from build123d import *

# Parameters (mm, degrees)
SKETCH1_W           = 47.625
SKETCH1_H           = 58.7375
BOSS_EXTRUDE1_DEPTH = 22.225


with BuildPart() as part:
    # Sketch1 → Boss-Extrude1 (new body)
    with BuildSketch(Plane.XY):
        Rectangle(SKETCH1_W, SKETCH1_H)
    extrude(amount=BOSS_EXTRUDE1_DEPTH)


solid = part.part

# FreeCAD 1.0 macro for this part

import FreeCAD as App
import Part
import Sketcher

V = App.Vector
Q = App.Units.Quantity

doc = App.newDocument("Part")
body = doc.addObject("PartDesign::Body", "Body")

sketch1 = doc.addObject("Sketcher::SketchObject", "Sketch")
body.addObject(sketch1)
sketch1.AttachmentSupport = (doc.XY_Plane, [""])
sketch1.MapMode = "FlatFace"
sketch1.addGeometry([
    Part.LineSegment(V(-24, 29, 0), V(-24, -29, 0)),
    Part.LineSegment(V(-24, -29, 0), V(24, -29, 0)),
    Part.LineSegment(V(24, -29, 0), V(24, 29, 0)),
    Part.LineSegment(V(24, 29, 0), V(-24, 29, 0)),
], False)
sketch1.addConstraint([
    Sketcher.Constraint("Coincident", 0, 2, 1, 1),
    Sketcher.Constraint("Coincident", 1, 2, 2, 1),
    Sketcher.Constraint("Coincident", 2, 2, 3, 1),
    Sketcher.Constraint("Coincident", 3, 2, 0, 1),
    Sketcher.Constraint("Vertical", 0),
    Sketcher.Constraint("Horizontal", 1),
    Sketcher.Constraint("Vertical", 2),
    Sketcher.Constraint("Horizontal", 3),
    Sketcher.Constraint("Symmetric", 0, 2, 2, 2, -1, 1),
    Sketcher.Constraint("DistanceX", 1, 1, 1, 2, Q("1.875 in")),
    Sketcher.Constraint("DistanceY", 0, 2, 0, 1, Q("2.3125 in")),
])
pad1 = doc.addObject("PartDesign::Pad", "Pad")
body.addObject(pad1)
pad1.Profile = sketch1
pad1.Length = Q("0.875 in")

doc.recompute()
